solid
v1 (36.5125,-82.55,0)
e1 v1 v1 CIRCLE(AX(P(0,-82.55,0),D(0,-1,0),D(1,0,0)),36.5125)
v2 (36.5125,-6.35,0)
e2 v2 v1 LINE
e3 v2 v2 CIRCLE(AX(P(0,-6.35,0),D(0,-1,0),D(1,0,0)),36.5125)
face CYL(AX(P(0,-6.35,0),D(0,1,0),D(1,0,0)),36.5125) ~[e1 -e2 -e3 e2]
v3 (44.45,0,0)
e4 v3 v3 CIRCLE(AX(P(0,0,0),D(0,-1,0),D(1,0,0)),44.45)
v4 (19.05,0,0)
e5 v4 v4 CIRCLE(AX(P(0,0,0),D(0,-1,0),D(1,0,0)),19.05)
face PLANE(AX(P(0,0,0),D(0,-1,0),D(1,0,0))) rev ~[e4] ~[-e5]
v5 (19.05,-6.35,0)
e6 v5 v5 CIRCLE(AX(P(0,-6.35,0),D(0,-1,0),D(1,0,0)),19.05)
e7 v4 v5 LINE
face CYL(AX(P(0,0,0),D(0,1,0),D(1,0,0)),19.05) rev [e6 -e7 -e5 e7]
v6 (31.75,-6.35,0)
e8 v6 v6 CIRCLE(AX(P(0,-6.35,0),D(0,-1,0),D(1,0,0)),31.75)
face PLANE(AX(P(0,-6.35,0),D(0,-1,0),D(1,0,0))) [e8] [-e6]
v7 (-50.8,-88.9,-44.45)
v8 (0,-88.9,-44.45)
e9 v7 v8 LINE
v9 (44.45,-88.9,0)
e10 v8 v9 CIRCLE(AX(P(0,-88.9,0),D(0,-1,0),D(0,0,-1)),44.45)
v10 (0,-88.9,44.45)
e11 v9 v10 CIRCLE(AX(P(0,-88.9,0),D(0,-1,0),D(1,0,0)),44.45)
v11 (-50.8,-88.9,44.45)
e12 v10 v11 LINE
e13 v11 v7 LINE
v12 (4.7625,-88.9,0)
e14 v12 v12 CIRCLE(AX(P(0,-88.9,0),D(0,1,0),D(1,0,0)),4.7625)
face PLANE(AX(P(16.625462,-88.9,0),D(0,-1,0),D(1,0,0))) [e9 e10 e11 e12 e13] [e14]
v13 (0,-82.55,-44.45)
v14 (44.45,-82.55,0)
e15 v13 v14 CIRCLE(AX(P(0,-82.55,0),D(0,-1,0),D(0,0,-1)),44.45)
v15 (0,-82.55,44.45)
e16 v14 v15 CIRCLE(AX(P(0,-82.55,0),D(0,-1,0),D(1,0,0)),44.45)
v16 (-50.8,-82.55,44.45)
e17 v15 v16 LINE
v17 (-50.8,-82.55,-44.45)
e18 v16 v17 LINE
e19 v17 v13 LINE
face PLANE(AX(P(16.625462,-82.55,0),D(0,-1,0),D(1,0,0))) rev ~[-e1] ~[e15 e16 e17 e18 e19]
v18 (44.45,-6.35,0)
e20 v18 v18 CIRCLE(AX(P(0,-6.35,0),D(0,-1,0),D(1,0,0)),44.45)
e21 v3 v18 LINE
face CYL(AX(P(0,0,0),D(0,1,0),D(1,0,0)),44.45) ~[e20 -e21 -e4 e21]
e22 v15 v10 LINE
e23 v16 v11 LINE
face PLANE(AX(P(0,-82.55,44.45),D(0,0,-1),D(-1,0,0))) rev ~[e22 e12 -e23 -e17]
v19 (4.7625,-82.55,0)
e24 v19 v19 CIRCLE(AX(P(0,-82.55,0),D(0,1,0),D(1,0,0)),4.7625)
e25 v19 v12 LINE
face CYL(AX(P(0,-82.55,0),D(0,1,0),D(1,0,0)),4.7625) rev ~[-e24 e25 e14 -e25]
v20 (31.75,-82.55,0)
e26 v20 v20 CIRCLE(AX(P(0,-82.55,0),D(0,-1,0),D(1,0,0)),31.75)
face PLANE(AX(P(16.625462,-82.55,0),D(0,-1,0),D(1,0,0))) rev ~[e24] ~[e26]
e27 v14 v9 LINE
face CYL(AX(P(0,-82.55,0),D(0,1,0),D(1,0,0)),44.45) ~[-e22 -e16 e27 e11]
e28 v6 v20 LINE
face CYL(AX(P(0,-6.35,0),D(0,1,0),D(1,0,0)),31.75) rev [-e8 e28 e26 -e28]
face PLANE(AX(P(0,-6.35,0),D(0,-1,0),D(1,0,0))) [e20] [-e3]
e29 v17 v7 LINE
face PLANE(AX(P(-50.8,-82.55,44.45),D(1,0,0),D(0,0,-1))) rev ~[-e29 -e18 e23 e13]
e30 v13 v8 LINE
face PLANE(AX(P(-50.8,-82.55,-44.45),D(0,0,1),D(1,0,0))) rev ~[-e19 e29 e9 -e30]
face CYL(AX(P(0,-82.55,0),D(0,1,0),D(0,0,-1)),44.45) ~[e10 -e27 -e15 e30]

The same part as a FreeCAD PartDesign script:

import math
import FreeCAD as App
import Part
import Sketcher
Q = App.Units.Quantity


def add_polygon(sketch, points):
    """Adds a closed chain of lines whose ends are joined by coincident constraints."""
    first, n = sketch.GeometryCount, len(points)
    for a, b in zip(points, points[1:] + points[:1]):
        sketch.addGeometry(Part.LineSegment(App.Vector(*a, 0), App.Vector(*b, 0)), False)
    for i in range(n):
        sketch.addConstraint(Sketcher.Constraint("Coincident", first + i, 2, first + (i + 1) % n, 1))

doc = App.newDocument("Part")
body = doc.addObject("PartDesign::Body", "Body")

# Sketch on XZ plane
sketch1 = body.newObject("Sketcher::SketchObject", "Sketch")
sketch1.AttachmentSupport = (doc.getObject("XZ_Plane"), [""])
sketch1.MapMode = "FlatFace"
sketch1.addGeometry([
    Part.Circle(App.Vector(0, 0, 0), App.Vector(0, 0, 1), 44),
    Part.Circle(App.Vector(0, 0, 0), App.Vector(0, 0, 1), 19),
], False)
sketch1.addConstraint([
    Sketcher.Constraint("Coincident", 0, 3, -1, 1),
    Sketcher.Constraint("Coincident", 1, 3, -1, 1),
    Sketcher.Constraint("Diameter", 0, Q("3.5 in")),
    Sketcher.Constraint("Diameter", 1, Q("1.5 in")),
])
pad1 = body.newObject("PartDesign::Pad", "Pad")
pad1.Profile = sketch1
pad1.Length = Q("0.25 in")

# Sketch on XZ plane
sketch2 = body.newObject("Sketcher::SketchObject", "Sketch001")
sketch2.AttachmentSupport = (doc.getObject("XZ_Plane"), [""])
sketch2.MapMode = "FlatFace"
sketch2.AttachmentOffset = App.Placement(App.Vector(0, 0, 0.25 * 25.4), App.Rotation())
sketch2.addGeometry([
    Part.Circle(App.Vector(0, 0, 0), App.Vector(0, 0, 1), 37),
    Part.Circle(App.Vector(0, 0, 0), App.Vector(0, 0, 1), 32),
], False)
sketch2.addConstraint([
    Sketcher.Constraint("Coincident", 0, 3, -1, 1),
    Sketcher.Constraint("Coincident", 1, 3, -1, 1),
    Sketcher.Constraint("Diameter", 1, Q("2.5 in")),
    Sketcher.Constraint("Diameter", 0, Q("2.875 in")),
])
pad2 = body.newObject("PartDesign::Pad", "Pad001")
pad2.Profile = sketch2
pad2.Length = Q("3 in")

# Sketch on XZ plane
sketch3 = body.newObject("Sketcher::SketchObject", "Sketch002")
sketch3.AttachmentSupport = (doc.getObject("XZ_Plane"), [""])
sketch3.MapMode = "FlatFace"
sketch3.AttachmentOffset = App.Placement(App.Vector(0, 0, 3.25 * 25.4), App.Rotation())
sketch3.addGeometry([
    Part.ArcOfCircle(Part.Circle(App.Vector(0, 0, 0), App.Vector(0, 0, 1), 44.5), math.radians(-90), math.radians(0)),  # 0
    Part.ArcOfCircle(Part.Circle(App.Vector(0, 0, 0), App.Vector(0, 0, 1), 44.5), math.radians(0), math.radians(90)),  # 1
    Part.LineSegment(App.Vector(0, 44.5, 0), App.Vector(-50.8, 44.5, 0)),  # 2
    Part.LineSegment(App.Vector(-50.8, 44.5, 0), App.Vector(-50.8, -44.5, 0)),  # 3
    Part.LineSegment(App.Vector(-50.8, -44.5, 0), App.Vector(0, -44.5, 0)),  # 4
    Part.Circle(App.Vector(0, 0, 0), App.Vector(0, 0, 1), 4.8),  # 5
], False)
sketch3.addConstraint([
    Sketcher.Constraint("Tangent", 0, 2, 1, 1),
    Sketcher.Constraint("Tangent", 1, 2, 2, 1),
    Sketcher.Constraint("Coincident", 2, 2, 3, 1),
    Sketcher.Constraint("Coincident", 3, 2, 4, 1),
    Sketcher.Constraint("Tangent", 4, 2, 0, 1),
    Sketcher.Constraint("Horizontal", 2),
    Sketcher.Constraint("Vertical", 3),
    Sketcher.Constraint("Horizontal", 4),
    Sketcher.Constraint("Coincident", 0, 3, -1, 1),
    Sketcher.Constraint("Coincident", 5, 3, -1, 1),
    Sketcher.Constraint("Equal", 0, 1),
    Sketcher.Constraint("PointOnObject", 0, 2, -1),
    Sketcher.Constraint("DistanceX", 2, 2, 2, 1, Q("2 in")),
    Sketcher.Constraint("Radius", 0, Q("1.75 in")),
    Sketcher.Constraint("Diameter", 5, Q("0.375 in")),
])
pad3 = body.newObject("PartDesign::Pad", "Pad002")
pad3.Profile = sketch3
pad3.Length = Q("0.25 in")
body2 = doc.addObject("PartDesign::Body", "Body001")

# Sketch on XZ plane
sketch4 = body2.newObject("Sketcher::SketchObject", "Sketch003")
sketch4.AttachmentSupport = (doc.getObject("XZ_Plane001"), [""])
sketch4.MapMode = "FlatFace"
sketch4.AttachmentOffset = App.Placement(App.Vector(0, 0, 3.5 * 25.4), App.Rotation())
add_polygon(sketch4, [(38, 25), (38, -25), (44, -25), (44, 25)])  # lines 0-3
sketch4.addConstraint([
    Sketcher.Constraint("Vertical", 0),
    Sketcher.Constraint("Horizontal", 1),
    Sketcher.Constraint("Vertical", 2),
    Sketcher.Constraint("Horizontal", 3),
    Sketcher.Constraint("DistanceY", 0, 2, 0, 1, Q("2 in")),
    Sketcher.Constraint("DistanceY", 0, 2, -1, 1, Q("1 in")),
    Sketcher.Constraint("DistanceX", 1, 1, 1, 2, Q("0.25 in")),
    Sketcher.Constraint("DistanceX", -1, 1, 0, 2, Q("1.5 in")),
])
pad4 = body2.newObject("PartDesign::Pad", "Pad003")
pad4.Profile = sketch4
pad4.Length = Q("3 in")
body2.Visibility = False

doc.recompute()
